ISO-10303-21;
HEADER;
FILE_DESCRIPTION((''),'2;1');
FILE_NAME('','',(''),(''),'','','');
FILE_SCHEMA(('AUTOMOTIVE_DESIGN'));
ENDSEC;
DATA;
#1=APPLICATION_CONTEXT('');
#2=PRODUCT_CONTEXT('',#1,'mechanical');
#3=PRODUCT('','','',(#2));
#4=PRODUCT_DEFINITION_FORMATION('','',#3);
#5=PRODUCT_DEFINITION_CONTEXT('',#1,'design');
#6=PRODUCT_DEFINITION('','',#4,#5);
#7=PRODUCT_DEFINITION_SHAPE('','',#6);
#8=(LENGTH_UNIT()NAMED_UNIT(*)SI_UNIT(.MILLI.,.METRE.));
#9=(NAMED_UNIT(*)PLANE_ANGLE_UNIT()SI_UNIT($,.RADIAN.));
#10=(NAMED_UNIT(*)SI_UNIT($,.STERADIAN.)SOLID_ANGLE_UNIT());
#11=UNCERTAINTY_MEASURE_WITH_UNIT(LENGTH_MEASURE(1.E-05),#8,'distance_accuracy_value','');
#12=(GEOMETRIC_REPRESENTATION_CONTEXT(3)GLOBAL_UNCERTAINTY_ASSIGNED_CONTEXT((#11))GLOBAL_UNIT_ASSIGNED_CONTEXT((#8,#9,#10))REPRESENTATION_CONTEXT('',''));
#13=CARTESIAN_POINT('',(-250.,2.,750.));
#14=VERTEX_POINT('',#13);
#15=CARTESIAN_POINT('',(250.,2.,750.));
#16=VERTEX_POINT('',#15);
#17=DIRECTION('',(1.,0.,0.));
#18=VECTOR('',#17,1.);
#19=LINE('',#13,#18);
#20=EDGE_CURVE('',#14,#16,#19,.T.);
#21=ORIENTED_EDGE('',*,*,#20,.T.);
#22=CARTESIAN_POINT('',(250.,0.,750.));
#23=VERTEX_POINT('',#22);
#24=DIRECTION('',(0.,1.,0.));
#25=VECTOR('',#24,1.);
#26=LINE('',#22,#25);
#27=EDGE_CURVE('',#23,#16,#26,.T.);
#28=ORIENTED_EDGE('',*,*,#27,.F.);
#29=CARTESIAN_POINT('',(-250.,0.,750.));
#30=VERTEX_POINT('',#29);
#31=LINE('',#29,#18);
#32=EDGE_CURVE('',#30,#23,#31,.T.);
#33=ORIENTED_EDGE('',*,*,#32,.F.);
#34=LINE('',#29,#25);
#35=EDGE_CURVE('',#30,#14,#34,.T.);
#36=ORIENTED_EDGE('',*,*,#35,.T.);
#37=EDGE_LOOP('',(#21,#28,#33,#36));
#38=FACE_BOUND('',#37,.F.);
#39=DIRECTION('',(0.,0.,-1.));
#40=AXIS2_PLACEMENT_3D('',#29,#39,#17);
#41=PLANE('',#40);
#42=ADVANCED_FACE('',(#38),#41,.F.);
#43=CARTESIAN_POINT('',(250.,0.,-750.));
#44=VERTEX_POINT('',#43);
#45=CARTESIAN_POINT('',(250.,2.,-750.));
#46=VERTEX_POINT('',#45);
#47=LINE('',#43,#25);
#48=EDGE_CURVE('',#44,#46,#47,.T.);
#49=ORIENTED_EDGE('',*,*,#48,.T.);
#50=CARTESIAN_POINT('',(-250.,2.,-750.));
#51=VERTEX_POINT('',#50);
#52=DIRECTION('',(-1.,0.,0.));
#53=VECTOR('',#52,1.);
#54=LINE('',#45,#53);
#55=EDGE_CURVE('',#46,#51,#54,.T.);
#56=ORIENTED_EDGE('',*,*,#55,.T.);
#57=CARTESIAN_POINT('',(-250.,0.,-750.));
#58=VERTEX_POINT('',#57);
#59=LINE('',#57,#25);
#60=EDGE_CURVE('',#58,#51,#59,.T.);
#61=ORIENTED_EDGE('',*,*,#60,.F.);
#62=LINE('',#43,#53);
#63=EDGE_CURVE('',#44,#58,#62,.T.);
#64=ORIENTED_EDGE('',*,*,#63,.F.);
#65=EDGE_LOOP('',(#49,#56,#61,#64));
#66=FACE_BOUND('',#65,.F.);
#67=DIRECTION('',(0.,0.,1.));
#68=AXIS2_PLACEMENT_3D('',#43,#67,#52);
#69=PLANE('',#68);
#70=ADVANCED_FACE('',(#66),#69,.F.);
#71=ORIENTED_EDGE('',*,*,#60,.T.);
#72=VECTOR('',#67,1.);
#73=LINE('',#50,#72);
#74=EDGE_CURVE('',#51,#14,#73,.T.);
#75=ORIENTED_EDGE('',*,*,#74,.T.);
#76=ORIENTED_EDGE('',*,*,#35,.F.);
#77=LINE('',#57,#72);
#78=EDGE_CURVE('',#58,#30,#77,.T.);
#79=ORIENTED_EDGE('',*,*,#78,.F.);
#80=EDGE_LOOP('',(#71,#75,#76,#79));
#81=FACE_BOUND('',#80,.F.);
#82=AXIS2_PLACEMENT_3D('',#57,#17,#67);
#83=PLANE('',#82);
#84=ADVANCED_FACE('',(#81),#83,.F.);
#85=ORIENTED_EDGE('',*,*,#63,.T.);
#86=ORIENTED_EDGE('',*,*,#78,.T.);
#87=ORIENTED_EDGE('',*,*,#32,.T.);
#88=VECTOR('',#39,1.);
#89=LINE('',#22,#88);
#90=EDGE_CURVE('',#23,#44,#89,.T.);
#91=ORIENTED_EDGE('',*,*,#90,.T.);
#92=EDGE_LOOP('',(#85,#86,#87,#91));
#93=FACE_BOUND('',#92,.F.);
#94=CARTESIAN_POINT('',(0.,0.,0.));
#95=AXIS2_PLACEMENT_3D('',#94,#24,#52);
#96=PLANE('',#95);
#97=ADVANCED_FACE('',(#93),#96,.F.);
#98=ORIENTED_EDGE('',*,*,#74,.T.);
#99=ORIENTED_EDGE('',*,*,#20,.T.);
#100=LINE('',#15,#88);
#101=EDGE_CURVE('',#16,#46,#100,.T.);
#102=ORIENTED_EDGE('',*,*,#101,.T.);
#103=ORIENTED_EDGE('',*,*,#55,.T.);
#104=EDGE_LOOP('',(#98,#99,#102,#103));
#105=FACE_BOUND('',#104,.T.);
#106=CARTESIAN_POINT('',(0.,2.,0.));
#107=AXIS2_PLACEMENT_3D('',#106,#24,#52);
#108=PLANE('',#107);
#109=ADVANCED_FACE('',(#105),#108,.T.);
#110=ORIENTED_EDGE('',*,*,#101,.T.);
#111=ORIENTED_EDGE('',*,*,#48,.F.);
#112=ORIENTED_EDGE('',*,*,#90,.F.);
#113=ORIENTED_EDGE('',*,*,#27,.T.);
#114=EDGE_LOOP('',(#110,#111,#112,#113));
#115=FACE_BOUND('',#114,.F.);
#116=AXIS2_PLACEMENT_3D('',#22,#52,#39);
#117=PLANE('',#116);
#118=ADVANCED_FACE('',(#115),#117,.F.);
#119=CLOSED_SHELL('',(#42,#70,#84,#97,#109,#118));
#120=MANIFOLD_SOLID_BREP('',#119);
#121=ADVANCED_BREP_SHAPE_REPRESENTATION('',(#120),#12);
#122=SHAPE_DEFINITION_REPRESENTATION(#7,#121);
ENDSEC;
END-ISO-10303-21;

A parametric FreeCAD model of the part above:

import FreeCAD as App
import Part
import Sketcher
from FreeCAD import Vector
Q = App.Units.Quantity


def add_polygon(sketch, points):
    """Adds a closed chain of lines whose ends are joined by coincident constraints."""
    first, n = sketch.GeometryCount, len(points)
    for a, b in zip(points, points[1:] + points[:1]):
        sketch.addGeometry(Part.LineSegment(App.Vector(*a, 0), App.Vector(*b, 0)), False)
    for i in range(n):
        sketch.addConstraint(Sketcher.Constraint("Coincident", first + i, 2, first + (i + 1) % n, 1))

doc = App.newDocument("Part")
params = doc.addObject("Spreadsheet::Sheet", "Params")
for row, (alias, value) in enumerate([
    ("sketch1_width", "500 mm"),
    ("sketch1_height", "1500 mm"),
    ("pad1_length", "2 mm"),
], start=1):
    params.set(f"A{row}", alias)
    params.set(f"B{row}", "=" + value)
    params.setAlias(f"B{row}", alias)

body = doc.addObject("PartDesign::Body", "Body")

# Sketch on XZ plane
sketch1 = body.newObject("Sketcher::SketchObject", "Sketch")
sketch1.AttachmentSupport = (doc.getObject("XZ_Plane"), [""])
sketch1.MapMode = "FlatFace"
add_polygon(sketch1, [(250, 750), (250, -750), (-250, -750), (-250, 750)])  # lines 0-3
sketch1.addConstraint(Sketcher.Constraint("Vertical", 0))
sketch1.addConstraint(Sketcher.Constraint("Horizontal", 1))
sketch1.addConstraint(Sketcher.Constraint("Vertical", 2))
sketch1.addConstraint(Sketcher.Constraint("Horizontal", 3))
sketch1.addConstraint(Sketcher.Constraint("Symmetric", 0, 2, 2, 2, -1, 1))
sketch1.addConstraint(Sketcher.Constraint("DistanceX", 1, 2, 1, 1, Q("500 mm")))
sketch1.addConstraint(Sketcher.Constraint("DistanceY", 0, 2, 0, 1, Q("1500 mm")))
sketch1.setExpression("Constraints[9]", "Params.sketch1_width")
sketch1.setExpression("Constraints[10]", "Params.sketch1_height")
pad1 = body.newObject("PartDesign::Pad", "Pad")
pad1.Profile = sketch1
pad1.setExpression("Length", "Params.pad1_length")
pad1.Reversed = True

doc.recompute()
